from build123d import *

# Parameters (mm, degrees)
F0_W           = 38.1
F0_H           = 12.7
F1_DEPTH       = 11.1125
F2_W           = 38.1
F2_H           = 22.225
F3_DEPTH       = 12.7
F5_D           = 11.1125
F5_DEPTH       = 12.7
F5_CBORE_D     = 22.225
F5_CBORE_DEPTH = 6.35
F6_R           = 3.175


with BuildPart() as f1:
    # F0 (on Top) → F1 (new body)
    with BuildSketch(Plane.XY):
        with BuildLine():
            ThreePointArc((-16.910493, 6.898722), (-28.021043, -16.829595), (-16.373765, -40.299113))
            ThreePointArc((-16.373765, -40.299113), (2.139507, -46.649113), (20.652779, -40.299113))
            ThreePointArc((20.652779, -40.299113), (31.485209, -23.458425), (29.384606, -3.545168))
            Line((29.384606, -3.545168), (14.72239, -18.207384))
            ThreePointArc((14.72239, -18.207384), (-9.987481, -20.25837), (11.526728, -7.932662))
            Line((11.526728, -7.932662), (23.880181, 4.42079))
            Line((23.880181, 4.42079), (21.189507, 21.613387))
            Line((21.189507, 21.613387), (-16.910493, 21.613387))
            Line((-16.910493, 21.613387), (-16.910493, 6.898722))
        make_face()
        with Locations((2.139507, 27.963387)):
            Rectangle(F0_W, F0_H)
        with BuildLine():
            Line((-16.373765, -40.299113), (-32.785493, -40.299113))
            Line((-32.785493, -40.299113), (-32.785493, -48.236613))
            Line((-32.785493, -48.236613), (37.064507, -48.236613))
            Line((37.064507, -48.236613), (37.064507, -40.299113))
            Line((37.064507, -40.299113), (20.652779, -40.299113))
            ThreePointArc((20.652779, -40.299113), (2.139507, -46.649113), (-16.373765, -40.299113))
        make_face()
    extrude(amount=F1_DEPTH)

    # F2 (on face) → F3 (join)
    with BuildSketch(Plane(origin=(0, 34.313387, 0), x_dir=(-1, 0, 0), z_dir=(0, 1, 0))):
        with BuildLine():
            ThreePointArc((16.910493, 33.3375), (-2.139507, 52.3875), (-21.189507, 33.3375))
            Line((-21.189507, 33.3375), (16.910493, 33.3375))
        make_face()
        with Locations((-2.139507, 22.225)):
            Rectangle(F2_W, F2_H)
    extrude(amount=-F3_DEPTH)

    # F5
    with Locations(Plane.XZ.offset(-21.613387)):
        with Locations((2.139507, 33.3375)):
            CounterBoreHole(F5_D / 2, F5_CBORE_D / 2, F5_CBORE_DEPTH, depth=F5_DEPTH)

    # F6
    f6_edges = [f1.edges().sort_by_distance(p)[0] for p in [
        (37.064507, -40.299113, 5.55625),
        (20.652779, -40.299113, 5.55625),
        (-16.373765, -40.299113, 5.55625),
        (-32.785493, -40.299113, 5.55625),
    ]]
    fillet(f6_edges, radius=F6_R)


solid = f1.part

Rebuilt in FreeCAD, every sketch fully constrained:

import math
import FreeCAD as App
import Part
import Sketcher
Q = App.Units.Quantity


def edges_at(feature, points):
    """Names of the edges that pass closest to the given points."""
    edges = feature.Shape.Edges
    near = lambda p: min(range(len(edges)), key=lambda i: edges[i].distToShape(Part.Vertex(*p))[0])
    return sorted({f"Edge{near(p) + 1}" for p in points})

doc = App.newDocument("Part")
params = doc.addObject("Spreadsheet::Sheet", "Params")
for row, (alias, value) in enumerate([
    ("sketch1_radius", "0.5 in"),
    ("sketch1_width", "1.5 in"),
    ("sketch1_height", "0.5 in"),
    ("sketch1_radius2", "1.1875 in"),
    ("sketch1_width2", "2.75 in"),
    ("pad1_length", "0.4375 in"),
    ("sketch2_radius", "0.75 in"),
    ("sketch2_height", "0.875 in"),
    ("pad2_length", "0.5 in"),
    ("sketch3_diameter", "0.4375 in"),
    ("hole_diameter", "0.4375 in"),
    ("hole_depth", "0.5 in"),
    ("hole_cbore_diameter", "0.875 in"),
    ("hole_cbore_depth", "0.25 in"),
    ("fillet_radius", "0.125 in"),
], start=1):
    params.set(f"A{row}", alias)
    params.set(f"B{row}", "=" + value)
    params.setAlias(f"B{row}", alias)

body = doc.addObject("PartDesign::Body", "Body")

# Sketch on XY plane
sketch1 = body.newObject("Sketcher::SketchObject", "Sketch")
sketch1.AttachmentSupport = (doc.getObject("XY_Plane"), [""])
sketch1.MapMode = "FlatFace"
sketch1.addGeometry([
    Part.ArcOfCircle(Part.Circle(App.Vector(2, -16, 0), App.Vector(0, 0, 1), 30), math.radians(129), math.radians(232)),  # 0
    Part.LineSegment(App.Vector(-16, -40, 0), App.Vector(-33, -40, 0)),  # 1
    Part.LineSegment(App.Vector(-33, -40, 0), App.Vector(-33, -48, 0)),  # 2
    Part.LineSegment(App.Vector(-33, -48, 0), App.Vector(37, -48, 0)),  # 3
    Part.LineSegment(App.Vector(37, -48, 0), App.Vector(37, -40, 0)),  # 4
    Part.LineSegment(App.Vector(37, -40, 0), App.Vector(21, -40, 0)),  # 5
    Part.ArcOfCircle(Part.Circle(App.Vector(2, -16, 0), App.Vector(0, 0, 1), 30), math.radians(-52), math.radians(25)),  # 6
    Part.LineSegment(App.Vector(29, -4, 0), App.Vector(15, -18, 0)),  # 7
    Part.ArcOfCircle(Part.Circle(App.Vector(2, -16, 0), App.Vector(0, 0, 1), 13), math.radians(42), math.radians(352)),  # 8
    Part.LineSegment(App.Vector(12, -8, 0), App.Vector(24, 4, 0)),  # 9
    Part.LineSegment(App.Vector(24, 4, 0), App.Vector(21, 22, 0)),  # 10
    Part.LineSegment(App.Vector(21, 22, 0), App.Vector(21, 34, 0)),  # 11
    Part.LineSegment(App.Vector(21, 34, 0), App.Vector(-17, 34, 0)),  # 12
    Part.LineSegment(App.Vector(-17, 34, 0), App.Vector(-17, 7, 0)),  # 13
], False)
sketch1.addConstraint([
    Sketcher.Constraint("Coincident", 0, 2, 1, 1),
    Sketcher.Constraint("Coincident", 1, 2, 2, 1),
    Sketcher.Constraint("Coincident", 2, 2, 3, 1),
    Sketcher.Constraint("Coincident", 3, 2, 4, 1),
    Sketcher.Constraint("Coincident", 4, 2, 5, 1),
    Sketcher.Constraint("Coincident", 5, 2, 6, 1),
    Sketcher.Constraint("Coincident", 6, 2, 7, 1),
    Sketcher.Constraint("Coincident", 7, 2, 8, 2),
    Sketcher.Constraint("Coincident", 8, 1, 9, 1),
    Sketcher.Constraint("Coincident", 9, 2, 10, 1),
    Sketcher.Constraint("Coincident", 10, 2, 11, 1),
    Sketcher.Constraint("Coincident", 11, 2, 12, 1),
    Sketcher.Constraint("Coincident", 12, 2, 13, 1),
    Sketcher.Constraint("Coincident", 13, 2, 0, 1),
    Sketcher.Constraint("Horizontal", 1),
    Sketcher.Constraint("Vertical", 2),
    Sketcher.Constraint("Horizontal", 3),
    Sketcher.Constraint("Vertical", 4),
    Sketcher.Constraint("Horizontal", 5),
    Sketcher.Constraint("Vertical", 11),
    Sketcher.Constraint("Horizontal", 12),
    Sketcher.Constraint("Vertical", 13),
    Sketcher.Constraint("Coincident", 6, 3, 0, 3),
    Sketcher.Constraint("Coincident", 8, 3, 0, 3),
    Sketcher.Constraint("Equal", 0, 6),
    Sketcher.Constraint("Parallel", 7, 9),
    Sketcher.Constraint("Horizontal", 1, 2, 4, 2),
    Sketcher.Constraint("Equal", 1, 5),
    Sketcher.Constraint("Radius", 8, Q("0.5 in")),
    Sketcher.Constraint("DistanceX", 12, 2, 12, 1, Q("1.5 in")),
    Sketcher.Constraint("DistanceY", 11, 1, 11, 2, Q("0.5 in")),
    Sketcher.Constraint("Angle", 7, Q("-135 deg")),
    Sketcher.Constraint("Radius", 0, Q("1.1875 in")),
    Sketcher.Constraint("DistanceY", 6, 3, 12, 2, Q("2 in")),
    Sketcher.Constraint("DistanceX", 3, 1, 3, 2, Q("2.75 in")),
    Sketcher.Constraint("DistanceY", 2, 2, 2, 1, Q("0.3125 in")),
    Sketcher.Constraint("DistanceY", 2, 2, 0, 3, Q("1.25 in")),
    Sketcher.Constraint("DistanceX", 8, 3, 10, 2, Q("0.75 in")),
    Sketcher.Constraint("DistanceX", 8, 3, 6, 2, 27.245099),
    Sketcher.Constraint("Distance", 9, 17.47042),
    Sketcher.Constraint("Distance", 10, 17.401871),
    Sketcher.Constraint("DistanceX", -1, 1, 5, 2, 20.652779),
    Sketcher.Constraint("DistanceY", -1, 1, 9, 2, 4.42079),
])
sketch1.setExpression("Constraints[28]", "Params.sketch1_radius")
sketch1.setExpression("Constraints[29]", "Params.sketch1_width")
sketch1.setExpression("Constraints[30]", "Params.sketch1_height")
sketch1.setExpression("Constraints[32]", "Params.sketch1_radius2")
sketch1.setExpression("Constraints[34]", "Params.sketch1_width2")
pad1 = body.newObject("PartDesign::Pad", "Pad")
pad1.Profile = sketch1
pad1.setExpression("Length", "Params.pad1_length")

# Sketch on XZ plane
sketch2 = body.newObject("Sketcher::SketchObject", "Sketch001")
sketch2.AttachmentSupport = (doc.getObject("XZ_Plane"), [""])
sketch2.MapMode = "FlatFace"
sketch2.AttachmentOffset = App.Placement(App.Vector(0, 0, -34.313387), App.Rotation())
sketch2.addGeometry([
    Part.ArcOfCircle(Part.Circle(App.Vector(2, 33, 0), App.Vector(0, 0, 1), 19), math.radians(0), math.radians(180)),
    Part.LineSegment(App.Vector(21, 33, 0), App.Vector(21, 11, 0)),
    Part.LineSegment(App.Vector(21, 11, 0), App.Vector(-17, 11, 0)),
    Part.LineSegment(App.Vector(-17, 11, 0), App.Vector(-17, 33, 0)),
], False)
sketch2.addConstraint([
    Sketcher.Constraint("Tangent", 0, 1, 1, 1),
    Sketcher.Constraint("Coincident", 1, 2, 2, 1),
    Sketcher.Constraint("Coincident", 2, 2, 3, 1),
    Sketcher.Constraint("Tangent", 3, 2, 0, 2),
    Sketcher.Constraint("Vertical", 1),
    Sketcher.Constraint("Horizontal", 2),
    Sketcher.Constraint("Vertical", 3),
    Sketcher.Constraint("Radius", 0, Q("0.75 in")),
    Sketcher.Constraint("DistanceY", 1, 2, 1, 1, Q("0.875 in")),
    Sketcher.Constraint("DistanceY", -1, 1, 0, 3, Q("1.3125 in")),
    Sketcher.Constraint("DistanceX", -1, 1, 0, 3, 2.139507),
])
sketch2.setExpression("Constraints[7]", "Params.sketch2_radius")
sketch2.setExpression("Constraints[8]", "Params.sketch2_height")
pad2 = body.newObject("PartDesign::Pad", "Pad001")
pad2.Profile = sketch2
pad2.setExpression("Length", "Params.pad2_length")

# Sketch on XZ plane
sketch3 = body.newObject("Sketcher::SketchObject", "Sketch002")
sketch3.AttachmentSupport = (doc.getObject("XZ_Plane"), [""])
sketch3.MapMode = "FlatFace"
sketch3.AttachmentOffset = App.Placement(App.Vector(0, 0, -21.613387), App.Rotation())
sketch3.addGeometry(Part.Circle(App.Vector(2, 33, 0), App.Vector(0, 0, 1), 6), False)
sketch3.addConstraint([
    Sketcher.Constraint("Diameter", 0, Q("0.4375 in")),
    Sketcher.Constraint("DistanceY", -1, 1, 0, 3, Q("1.3125 in")),
    Sketcher.Constraint("DistanceX", -1, 1, 0, 3, 2.139507),
])
sketch3.setExpression("Constraints[0]", "Params.sketch3_diameter")
doc.recompute()
hole = body.newObject("PartDesign::Hole", "Hole")
hole.Profile = sketch3
hole.ThreadType = "None"
hole.setExpression("Diameter", "Params.hole_diameter")
hole.DepthType = "Dimension"
hole.setExpression("Depth", "Params.hole_depth")
hole.DrillPoint = "Flat"
hole.HoleCutType = "Counterbore"
hole.setExpression("HoleCutDiameter", "Params.hole_cbore_diameter")
hole.setExpression("HoleCutDepth", "Params.hole_cbore_depth")
doc.recompute()

fillet = body.newObject("PartDesign::Fillet", "Fillet")
fillet.Base = (hole, edges_at(hole, [
    (37.065, -40.299, 5.556),
    (20.653, -40.299, 5.556),
    (-16.374, -40.299, 5.556),
    (-32.785, -40.299, 5.556),
]))
fillet.setExpression("Radius", "Params.fillet_radius")

doc.recompute()
